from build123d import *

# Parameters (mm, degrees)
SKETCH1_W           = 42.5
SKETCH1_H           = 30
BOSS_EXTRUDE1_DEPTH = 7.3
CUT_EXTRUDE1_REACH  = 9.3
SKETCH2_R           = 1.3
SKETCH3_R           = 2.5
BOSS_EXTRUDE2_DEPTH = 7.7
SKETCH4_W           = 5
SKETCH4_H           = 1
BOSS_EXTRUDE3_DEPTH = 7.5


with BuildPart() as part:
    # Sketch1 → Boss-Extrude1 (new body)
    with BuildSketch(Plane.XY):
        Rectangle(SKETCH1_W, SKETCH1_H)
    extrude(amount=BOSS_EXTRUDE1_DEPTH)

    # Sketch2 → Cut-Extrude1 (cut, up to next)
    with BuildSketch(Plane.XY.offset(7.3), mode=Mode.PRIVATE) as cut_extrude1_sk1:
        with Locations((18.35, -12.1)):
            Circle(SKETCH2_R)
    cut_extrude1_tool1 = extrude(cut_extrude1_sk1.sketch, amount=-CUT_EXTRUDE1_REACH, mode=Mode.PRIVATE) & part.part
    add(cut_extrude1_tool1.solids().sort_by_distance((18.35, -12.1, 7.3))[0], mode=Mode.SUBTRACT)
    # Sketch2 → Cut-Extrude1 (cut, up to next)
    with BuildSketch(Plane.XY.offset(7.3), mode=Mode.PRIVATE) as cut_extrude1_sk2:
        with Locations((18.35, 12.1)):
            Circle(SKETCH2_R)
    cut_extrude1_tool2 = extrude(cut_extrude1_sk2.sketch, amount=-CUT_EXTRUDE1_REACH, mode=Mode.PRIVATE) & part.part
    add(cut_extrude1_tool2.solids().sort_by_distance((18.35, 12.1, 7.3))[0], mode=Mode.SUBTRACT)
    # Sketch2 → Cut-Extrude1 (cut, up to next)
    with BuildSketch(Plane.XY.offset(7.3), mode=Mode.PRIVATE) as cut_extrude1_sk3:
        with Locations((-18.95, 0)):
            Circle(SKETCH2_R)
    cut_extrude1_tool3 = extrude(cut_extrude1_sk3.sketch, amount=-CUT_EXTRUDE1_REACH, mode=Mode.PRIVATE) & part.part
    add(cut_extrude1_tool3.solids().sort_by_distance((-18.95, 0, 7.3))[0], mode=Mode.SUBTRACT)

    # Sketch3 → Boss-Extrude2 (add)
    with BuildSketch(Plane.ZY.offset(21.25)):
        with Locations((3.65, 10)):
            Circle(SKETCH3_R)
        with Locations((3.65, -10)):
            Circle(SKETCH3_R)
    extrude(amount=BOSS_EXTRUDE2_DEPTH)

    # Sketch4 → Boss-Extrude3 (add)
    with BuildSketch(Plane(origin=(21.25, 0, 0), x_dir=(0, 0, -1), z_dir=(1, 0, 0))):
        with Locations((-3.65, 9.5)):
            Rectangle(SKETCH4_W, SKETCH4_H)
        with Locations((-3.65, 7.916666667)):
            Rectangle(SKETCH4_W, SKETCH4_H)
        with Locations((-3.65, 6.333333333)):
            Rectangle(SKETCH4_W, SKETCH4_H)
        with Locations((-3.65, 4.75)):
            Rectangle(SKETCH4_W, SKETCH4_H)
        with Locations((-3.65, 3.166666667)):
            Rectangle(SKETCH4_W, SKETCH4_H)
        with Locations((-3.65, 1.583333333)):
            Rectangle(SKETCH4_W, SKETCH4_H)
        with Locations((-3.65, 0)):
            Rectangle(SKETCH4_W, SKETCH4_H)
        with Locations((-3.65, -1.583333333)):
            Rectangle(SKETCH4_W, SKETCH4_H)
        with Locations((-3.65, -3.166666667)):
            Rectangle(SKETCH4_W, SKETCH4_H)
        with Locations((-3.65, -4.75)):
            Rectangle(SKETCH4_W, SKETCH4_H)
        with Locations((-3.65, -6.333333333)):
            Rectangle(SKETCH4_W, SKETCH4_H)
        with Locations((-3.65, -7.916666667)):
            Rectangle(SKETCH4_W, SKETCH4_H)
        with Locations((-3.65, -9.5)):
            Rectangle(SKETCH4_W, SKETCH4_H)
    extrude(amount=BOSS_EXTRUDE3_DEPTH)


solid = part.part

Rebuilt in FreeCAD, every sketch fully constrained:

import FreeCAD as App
import Part
import Sketcher
from FreeCAD import Vector
Q = App.Units.Quantity


def add_polygon(sketch, points):
    """Adds a closed chain of lines whose ends are joined by coincident constraints."""
    first, n = sketch.GeometryCount, len(points)
    for a, b in zip(points, points[1:] + points[:1]):
        sketch.addGeometry(Part.LineSegment(App.Vector(*a, 0), App.Vector(*b, 0)), False)
    for i in range(n):
        sketch.addConstraint(Sketcher.Constraint("Coincident", first + i, 2, first + (i + 1) % n, 1))

doc = App.newDocument("Part")
body = doc.addObject("PartDesign::Body", "Body")

# Sketch on XY plane
sketch1 = body.newObject("Sketcher::SketchObject", "Sketch")
sketch1.AttachmentSupport = (doc.getObject("XY_Plane"), [""])
sketch1.MapMode = "FlatFace"
add_polygon(sketch1, [(-21, 15), (-21, -15), (21, -15), (21, 15)])  # lines 0-3
sketch1.addConstraint(Sketcher.Constraint("Vertical", 0))
sketch1.addConstraint(Sketcher.Constraint("Horizontal", 1))
sketch1.addConstraint(Sketcher.Constraint("Vertical", 2))
sketch1.addConstraint(Sketcher.Constraint("Horizontal", 3))
sketch1.addConstraint(Sketcher.Constraint("Symmetric", 0, 2, 2, 2, -1, 1))
sketch1.addConstraint(Sketcher.Constraint("DistanceY", 0, 2, 0, 1, Q("30 mm")))
sketch1.addConstraint(Sketcher.Constraint("DistanceX", 1, 1, 1, 2, Q("42.5 mm")))
pad1 = body.newObject("PartDesign::Pad", "Pad")
pad1.Profile = sketch1
pad1.Length = 7.3

# Sketch on XY plane
sketch2 = body.newObject("Sketcher::SketchObject", "Sketch001")
sketch2.AttachmentSupport = (doc.getObject("XY_Plane"), [""])
sketch2.MapMode = "FlatFace"
sketch2.AttachmentOffset = App.Placement(Vector(0, 0, 7.3), App.Rotation())
sketch2.addGeometry(Part.Circle(Vector(18.4, -12.1, 0), Vector(0, 0, 1), 1.3), False)
sketch2.addConstraint(Sketcher.Constraint("Diameter", 0, Q("2.6 mm")))
sketch2.addConstraint(Sketcher.Constraint("DistanceY", 0, 3, -1, 1, Q("12.1 mm")))
sketch2.addConstraint(Sketcher.Constraint("DistanceX", -1, 1, 0, 3, Q("18.35 mm")))
pocket1 = body.newObject("PartDesign::Pocket", "Pocket")
pocket1.Profile = sketch2
pocket1.Type = "UpToFirst"

# Sketch on XY plane
sketch3 = body.newObject("Sketcher::SketchObject", "Sketch002")
sketch3.AttachmentSupport = (doc.getObject("XY_Plane"), [""])
sketch3.MapMode = "FlatFace"
sketch3.AttachmentOffset = App.Placement(Vector(0, 0, 7.3), App.Rotation())
sketch3.addGeometry(Part.Circle(Vector(18.4, 12.1, 0), Vector(0, 0, 1), 1.3), False)
sketch3.addConstraint(Sketcher.Constraint("Diameter", 0, Q("2.6 mm")))
sketch3.addConstraint(Sketcher.Constraint("DistanceY", -1, 1, 0, 3, Q("12.1 mm")))
sketch3.addConstraint(Sketcher.Constraint("DistanceX", -1, 1, 0, 3, Q("18.35 mm")))
pocket2 = body.newObject("PartDesign::Pocket", "Pocket001")
pocket2.Profile = sketch3
pocket2.Type = "UpToFirst"

# Sketch on XY plane
sketch4 = body.newObject("Sketcher::SketchObject", "Sketch003")
sketch4.AttachmentSupport = (doc.getObject("XY_Plane"), [""])
sketch4.MapMode = "FlatFace"
sketch4.AttachmentOffset = App.Placement(Vector(0, 0, 7.3), App.Rotation())
sketch4.addGeometry(Part.Circle(Vector(-18.9, 0, 0), Vector(0, 0, 1), 1.3), False)
sketch4.addConstraint(Sketcher.Constraint("PointOnObject", 0, 3, -1))
sketch4.addConstraint(Sketcher.Constraint("Diameter", 0, Q("2.6 mm")))
sketch4.addConstraint(Sketcher.Constraint("DistanceX", 0, 3, -1, 1, Q("18.95 mm")))
pocket3 = body.newObject("PartDesign::Pocket", "Pocket002")
pocket3.Profile = sketch4
pocket3.Type = "UpToFirst"

# Sketch on YZ plane
sketch5 = body.newObject("Sketcher::SketchObject", "Sketch004")
sketch5.AttachmentSupport = (doc.getObject("YZ_Plane"), [""])
sketch5.MapMode = "FlatFace"
sketch5.AttachmentOffset = App.Placement(Vector(0, 0, -21.25), App.Rotation())
sketch5.addGeometry(Part.Circle(Vector(10, 3.6, 0), Vector(0, 0, 1), 2.5), False)
sketch5.addGeometry(Part.Circle(Vector(-10, 3.6, 0), Vector(0, 0, 1), 2.5), False)
sketch5.addConstraint(Sketcher.Constraint("Equal", 0, 1))
sketch5.addConstraint(Sketcher.Constraint("Symmetric", 0, 3, 1, 3, -2))
sketch5.addConstraint(Sketcher.Constraint("Diameter", 0, Q("5 mm")))
sketch5.addConstraint(Sketcher.Constraint("DistanceX", -1, 1, 0, 3, Q("10 mm")))
sketch5.addConstraint(Sketcher.Constraint("DistanceY", -1, 1, 0, 3, Q("3.65 mm")))
pad2 = body.newObject("PartDesign::Pad", "Pad001")
pad2.Profile = sketch5
pad2.Length = 7.7
pad2.Reversed = True

# Sketch on YZ plane
sketch6 = body.newObject("Sketcher::SketchObject", "Sketch005")
sketch6.AttachmentSupport = (doc.getObject("YZ_Plane"), [""])
sketch6.MapMode = "FlatFace"
sketch6.AttachmentOffset = App.Placement(Vector(0, 0, 21.25), App.Rotation())
add_polygon(sketch6, [(10, 6.2), (9, 6.2), (9, 1.1), (10, 1.1)])  # lines 0-3
add_polygon(sketch6, [(8.4, 6.2), (7.4, 6.2), (7.4, 1.1), (8.4, 1.1)])  # lines 4-7
add_polygon(sketch6, [(6.8, 6.2), (5.8, 6.2), (5.8, 1.1), (6.8, 1.1)])  # lines 8-11
add_polygon(sketch6, [(5.2, 6.2), (4.2, 6.2), (4.2, 1.1), (5.2, 1.1)])  # lines 12-15
add_polygon(sketch6, [(3.7, 6.2), (2.7, 6.2), (2.7, 1.1), (3.7, 1.1)])  # lines 16-19
add_polygon(sketch6, [(2.1, 6.2), (1.1, 6.2), (1.1, 1.1), (2.1, 1.1)])  # lines 20-23
add_polygon(sketch6, [(0.5, 6.2), (-0.5, 6.2), (-0.5, 1.1), (0.5, 1.1)])  # lines 24-27
add_polygon(sketch6, [(-1.1, 6.2), (-2.1, 6.2), (-2.1, 1.1), (-1.1, 1.1)])  # lines 28-31
add_polygon(sketch6, [(-2.7, 6.2), (-3.7, 6.2), (-3.7, 1.1), (-2.7, 1.1)])  # lines 32-35
add_polygon(sketch6, [(-4.2, 6.2), (-5.2, 6.2), (-5.2, 1.1), (-4.2, 1.1)])  # lines 36-39
add_polygon(sketch6, [(-5.8, 6.2), (-6.8, 6.2), (-6.8, 1.1), (-5.8, 1.1)])  # lines 40-43
add_polygon(sketch6, [(-7.4, 6.2), (-8.4, 6.2), (-8.4, 1.1), (-7.4, 1.1)])  # lines 44-47
add_polygon(sketch6, [(-9, 6.2), (-10, 6.2), (-10, 1.1), (-9, 1.1)])  # lines 48-51
sketch6.addConstraint(Sketcher.Constraint("Horizontal", 0))
sketch6.addConstraint(Sketcher.Constraint("Vertical", 1))
sketch6.addConstraint(Sketcher.Constraint("Horizontal", 2))
sketch6.addConstraint(Sketcher.Constraint("Vertical", 3))
sketch6.addConstraint(Sketcher.Constraint("Horizontal", 4))
sketch6.addConstraint(Sketcher.Constraint("Vertical", 5))
sketch6.addConstraint(Sketcher.Constraint("Horizontal", 6))
sketch6.addConstraint(Sketcher.Constraint("Vertical", 7))
sketch6.addConstraint(Sketcher.Constraint("Horizontal", 8))
sketch6.addConstraint(Sketcher.Constraint("Vertical", 9))
sketch6.addConstraint(Sketcher.Constraint("Horizontal", 10))
sketch6.addConstraint(Sketcher.Constraint("Vertical", 11))
sketch6.addConstraint(Sketcher.Constraint("Horizontal", 12))
sketch6.addConstraint(Sketcher.Constraint("Vertical", 13))
sketch6.addConstraint(Sketcher.Constraint("Horizontal", 14))
sketch6.addConstraint(Sketcher.Constraint("Vertical", 15))
sketch6.addConstraint(Sketcher.Constraint("Horizontal", 16))
sketch6.addConstraint(Sketcher.Constraint("Vertical", 17))
sketch6.addConstraint(Sketcher.Constraint("Horizontal", 18))
sketch6.addConstraint(Sketcher.Constraint("Vertical", 19))
sketch6.addConstraint(Sketcher.Constraint("Horizontal", 20))
sketch6.addConstraint(Sketcher.Constraint("Vertical", 21))
sketch6.addConstraint(Sketcher.Constraint("Horizontal", 22))
sketch6.addConstraint(Sketcher.Constraint("Vertical", 23))
sketch6.addConstraint(Sketcher.Constraint("Horizontal", 24))
sketch6.addConstraint(Sketcher.Constraint("Vertical", 25))
sketch6.addConstraint(Sketcher.Constraint("Horizontal", 26))
sketch6.addConstraint(Sketcher.Constraint("Vertical", 27))
sketch6.addConstraint(Sketcher.Constraint("Horizontal", 28))
sketch6.addConstraint(Sketcher.Constraint("Vertical", 29))
sketch6.addConstraint(Sketcher.Constraint("Horizontal", 30))
sketch6.addConstraint(Sketcher.Constraint("Vertical", 31))
sketch6.addConstraint(Sketcher.Constraint("Horizontal", 32))
sketch6.addConstraint(Sketcher.Constraint("Vertical", 33))
sketch6.addConstraint(Sketcher.Constraint("Horizontal", 34))
sketch6.addConstraint(Sketcher.Constraint("Vertical", 35))
sketch6.addConstraint(Sketcher.Constraint("Horizontal", 36))
sketch6.addConstraint(Sketcher.Constraint("Vertical", 37))
sketch6.addConstraint(Sketcher.Constraint("Horizontal", 38))
sketch6.addConstraint(Sketcher.Constraint("Vertical", 39))
sketch6.addConstraint(Sketcher.Constraint("Horizontal", 40))
sketch6.addConstraint(Sketcher.Constraint("Vertical", 41))
sketch6.addConstraint(Sketcher.Constraint("Horizontal", 42))
sketch6.addConstraint(Sketcher.Constraint("Vertical", 43))
sketch6.addConstraint(Sketcher.Constraint("Horizontal", 44))
sketch6.addConstraint(Sketcher.Constraint("Vertical", 45))
sketch6.addConstraint(Sketcher.Constraint("Horizontal", 46))
sketch6.addConstraint(Sketcher.Constraint("Vertical", 47))
sketch6.addConstraint(Sketcher.Constraint("Horizontal", 48))
sketch6.addConstraint(Sketcher.Constraint("Vertical", 49))
sketch6.addConstraint(Sketcher.Constraint("Horizontal", 50))
sketch6.addConstraint(Sketcher.Constraint("Vertical", 51))
sketch6.addConstraint(Sketcher.Constraint("Symmetric", 23, 2, 28, 2, -2))
sketch6.addConstraint(Sketcher.Constraint("Symmetric", 21, 2, 30, 2, -2))
sketch6.addConstraint(Sketcher.Constraint("Symmetric", 19, 2, 32, 2, -2))
sketch6.addConstraint(Sketcher.Constraint("Symmetric", 17, 2, 34, 2, -2))
sketch6.addConstraint(Sketcher.Constraint("Symmetric", 15, 2, 36, 2, -2))
sketch6.addConstraint(Sketcher.Constraint("Symmetric", 13, 2, 38, 2, -2))
sketch6.addConstraint(Sketcher.Constraint("Symmetric", 11, 2, 40, 2, -2))
sketch6.addConstraint(Sketcher.Constraint("Symmetric", 9, 2, 42, 2, -2))
sketch6.addConstraint(Sketcher.Constraint("Symmetric", 7, 2, 44, 2, -2))
sketch6.addConstraint(Sketcher.Constraint("Symmetric", 5, 2, 46, 2, -2))
sketch6.addConstraint(Sketcher.Constraint("Symmetric", 3, 2, 48, 2, -2))
sketch6.addConstraint(Sketcher.Constraint("Symmetric", 1, 2, 50, 2, -2))
sketch6.addConstraint(Sketcher.Constraint("Horizontal", 3, 2, 4, 2))
sketch6.addConstraint(Sketcher.Constraint("Horizontal", 2, 2, 5, 2))
sketch6.addConstraint(Sketcher.Constraint("Horizontal", 7, 2, 8, 2))
sketch6.addConstraint(Sketcher.Constraint("Horizontal", 6, 2, 9, 2))
sketch6.addConstraint(Sketcher.Constraint("Horizontal", 11, 2, 12, 2))
sketch6.addConstraint(Sketcher.Constraint("Horizontal", 10, 2, 13, 2))
sketch6.addConstraint(Sketcher.Constraint("Horizontal", 15, 2, 16, 2))
sketch6.addConstraint(Sketcher.Constraint("Horizontal", 14, 2, 17, 2))
sketch6.addConstraint(Sketcher.Constraint("Horizontal", 19, 2, 20, 2))
sketch6.addConstraint(Sketcher.Constraint("Horizontal", 18, 2, 21, 2))
sketch6.addConstraint(Sketcher.Constraint("Horizontal", 23, 2, 24, 2))
sketch6.addConstraint(Sketcher.Constraint("Horizontal", 22, 2, 25, 2))
sketch6.addConstraint(Sketcher.Constraint("Equal", 2, 4))
sketch6.addConstraint(Sketcher.Constraint("Equal", 6, 8))
sketch6.addConstraint(Sketcher.Constraint("Equal", 10, 12))
sketch6.addConstraint(Sketcher.Constraint("Equal", 14, 16))
sketch6.addConstraint(Sketcher.Constraint("Equal", 18, 20))
sketch6.addConstraint(Sketcher.Constraint("Equal", 22, 24))
sketch6.addConstraint(Sketcher.Constraint("DistanceX", 0, 2, 0, 1, Q("1 mm")))
sketch6.addConstraint(Sketcher.Constraint("DistanceY", 1, 2, 1, 1, Q("5 mm")))
sketch6.addConstraint(Sketcher.Constraint("DistanceX", -1, 1, 0, 2, Q("9 mm")))
sketch6.addConstraint(Sketcher.Constraint("DistanceX", 24, 2, -1, 1, Q("0.5 mm")))
sketch6.addConstraint(Sketcher.Constraint("DistanceY", -1, 1, 0, 2, Q("6.15 mm")))
sketch6.addConstraint(Sketcher.Constraint("DistanceX", -1, 1, 12, 2, Q("4.25 mm")))
sketch6.addConstraint(Sketcher.Constraint("DistanceX", 16, 2, 4, 2, Q("4.75 mm")))
sketch6.addConstraint(Sketcher.Constraint("DistanceX", 20, 2, 8, 2, Q("4.75 mm")))
sketch6.addConstraint(Sketcher.Constraint("DistanceX", 28, 2, 16, 2, Q("4.75 mm")))
sketch6.addConstraint(Sketcher.Constraint("DistanceX", -1, 1, 4, 2, Q("7.416667 mm")))
pad3 = body.newObject("PartDesign::Pad", "Pad002")
pad3.Profile = sketch6
pad3.Length = 7.5

doc.recompute()
